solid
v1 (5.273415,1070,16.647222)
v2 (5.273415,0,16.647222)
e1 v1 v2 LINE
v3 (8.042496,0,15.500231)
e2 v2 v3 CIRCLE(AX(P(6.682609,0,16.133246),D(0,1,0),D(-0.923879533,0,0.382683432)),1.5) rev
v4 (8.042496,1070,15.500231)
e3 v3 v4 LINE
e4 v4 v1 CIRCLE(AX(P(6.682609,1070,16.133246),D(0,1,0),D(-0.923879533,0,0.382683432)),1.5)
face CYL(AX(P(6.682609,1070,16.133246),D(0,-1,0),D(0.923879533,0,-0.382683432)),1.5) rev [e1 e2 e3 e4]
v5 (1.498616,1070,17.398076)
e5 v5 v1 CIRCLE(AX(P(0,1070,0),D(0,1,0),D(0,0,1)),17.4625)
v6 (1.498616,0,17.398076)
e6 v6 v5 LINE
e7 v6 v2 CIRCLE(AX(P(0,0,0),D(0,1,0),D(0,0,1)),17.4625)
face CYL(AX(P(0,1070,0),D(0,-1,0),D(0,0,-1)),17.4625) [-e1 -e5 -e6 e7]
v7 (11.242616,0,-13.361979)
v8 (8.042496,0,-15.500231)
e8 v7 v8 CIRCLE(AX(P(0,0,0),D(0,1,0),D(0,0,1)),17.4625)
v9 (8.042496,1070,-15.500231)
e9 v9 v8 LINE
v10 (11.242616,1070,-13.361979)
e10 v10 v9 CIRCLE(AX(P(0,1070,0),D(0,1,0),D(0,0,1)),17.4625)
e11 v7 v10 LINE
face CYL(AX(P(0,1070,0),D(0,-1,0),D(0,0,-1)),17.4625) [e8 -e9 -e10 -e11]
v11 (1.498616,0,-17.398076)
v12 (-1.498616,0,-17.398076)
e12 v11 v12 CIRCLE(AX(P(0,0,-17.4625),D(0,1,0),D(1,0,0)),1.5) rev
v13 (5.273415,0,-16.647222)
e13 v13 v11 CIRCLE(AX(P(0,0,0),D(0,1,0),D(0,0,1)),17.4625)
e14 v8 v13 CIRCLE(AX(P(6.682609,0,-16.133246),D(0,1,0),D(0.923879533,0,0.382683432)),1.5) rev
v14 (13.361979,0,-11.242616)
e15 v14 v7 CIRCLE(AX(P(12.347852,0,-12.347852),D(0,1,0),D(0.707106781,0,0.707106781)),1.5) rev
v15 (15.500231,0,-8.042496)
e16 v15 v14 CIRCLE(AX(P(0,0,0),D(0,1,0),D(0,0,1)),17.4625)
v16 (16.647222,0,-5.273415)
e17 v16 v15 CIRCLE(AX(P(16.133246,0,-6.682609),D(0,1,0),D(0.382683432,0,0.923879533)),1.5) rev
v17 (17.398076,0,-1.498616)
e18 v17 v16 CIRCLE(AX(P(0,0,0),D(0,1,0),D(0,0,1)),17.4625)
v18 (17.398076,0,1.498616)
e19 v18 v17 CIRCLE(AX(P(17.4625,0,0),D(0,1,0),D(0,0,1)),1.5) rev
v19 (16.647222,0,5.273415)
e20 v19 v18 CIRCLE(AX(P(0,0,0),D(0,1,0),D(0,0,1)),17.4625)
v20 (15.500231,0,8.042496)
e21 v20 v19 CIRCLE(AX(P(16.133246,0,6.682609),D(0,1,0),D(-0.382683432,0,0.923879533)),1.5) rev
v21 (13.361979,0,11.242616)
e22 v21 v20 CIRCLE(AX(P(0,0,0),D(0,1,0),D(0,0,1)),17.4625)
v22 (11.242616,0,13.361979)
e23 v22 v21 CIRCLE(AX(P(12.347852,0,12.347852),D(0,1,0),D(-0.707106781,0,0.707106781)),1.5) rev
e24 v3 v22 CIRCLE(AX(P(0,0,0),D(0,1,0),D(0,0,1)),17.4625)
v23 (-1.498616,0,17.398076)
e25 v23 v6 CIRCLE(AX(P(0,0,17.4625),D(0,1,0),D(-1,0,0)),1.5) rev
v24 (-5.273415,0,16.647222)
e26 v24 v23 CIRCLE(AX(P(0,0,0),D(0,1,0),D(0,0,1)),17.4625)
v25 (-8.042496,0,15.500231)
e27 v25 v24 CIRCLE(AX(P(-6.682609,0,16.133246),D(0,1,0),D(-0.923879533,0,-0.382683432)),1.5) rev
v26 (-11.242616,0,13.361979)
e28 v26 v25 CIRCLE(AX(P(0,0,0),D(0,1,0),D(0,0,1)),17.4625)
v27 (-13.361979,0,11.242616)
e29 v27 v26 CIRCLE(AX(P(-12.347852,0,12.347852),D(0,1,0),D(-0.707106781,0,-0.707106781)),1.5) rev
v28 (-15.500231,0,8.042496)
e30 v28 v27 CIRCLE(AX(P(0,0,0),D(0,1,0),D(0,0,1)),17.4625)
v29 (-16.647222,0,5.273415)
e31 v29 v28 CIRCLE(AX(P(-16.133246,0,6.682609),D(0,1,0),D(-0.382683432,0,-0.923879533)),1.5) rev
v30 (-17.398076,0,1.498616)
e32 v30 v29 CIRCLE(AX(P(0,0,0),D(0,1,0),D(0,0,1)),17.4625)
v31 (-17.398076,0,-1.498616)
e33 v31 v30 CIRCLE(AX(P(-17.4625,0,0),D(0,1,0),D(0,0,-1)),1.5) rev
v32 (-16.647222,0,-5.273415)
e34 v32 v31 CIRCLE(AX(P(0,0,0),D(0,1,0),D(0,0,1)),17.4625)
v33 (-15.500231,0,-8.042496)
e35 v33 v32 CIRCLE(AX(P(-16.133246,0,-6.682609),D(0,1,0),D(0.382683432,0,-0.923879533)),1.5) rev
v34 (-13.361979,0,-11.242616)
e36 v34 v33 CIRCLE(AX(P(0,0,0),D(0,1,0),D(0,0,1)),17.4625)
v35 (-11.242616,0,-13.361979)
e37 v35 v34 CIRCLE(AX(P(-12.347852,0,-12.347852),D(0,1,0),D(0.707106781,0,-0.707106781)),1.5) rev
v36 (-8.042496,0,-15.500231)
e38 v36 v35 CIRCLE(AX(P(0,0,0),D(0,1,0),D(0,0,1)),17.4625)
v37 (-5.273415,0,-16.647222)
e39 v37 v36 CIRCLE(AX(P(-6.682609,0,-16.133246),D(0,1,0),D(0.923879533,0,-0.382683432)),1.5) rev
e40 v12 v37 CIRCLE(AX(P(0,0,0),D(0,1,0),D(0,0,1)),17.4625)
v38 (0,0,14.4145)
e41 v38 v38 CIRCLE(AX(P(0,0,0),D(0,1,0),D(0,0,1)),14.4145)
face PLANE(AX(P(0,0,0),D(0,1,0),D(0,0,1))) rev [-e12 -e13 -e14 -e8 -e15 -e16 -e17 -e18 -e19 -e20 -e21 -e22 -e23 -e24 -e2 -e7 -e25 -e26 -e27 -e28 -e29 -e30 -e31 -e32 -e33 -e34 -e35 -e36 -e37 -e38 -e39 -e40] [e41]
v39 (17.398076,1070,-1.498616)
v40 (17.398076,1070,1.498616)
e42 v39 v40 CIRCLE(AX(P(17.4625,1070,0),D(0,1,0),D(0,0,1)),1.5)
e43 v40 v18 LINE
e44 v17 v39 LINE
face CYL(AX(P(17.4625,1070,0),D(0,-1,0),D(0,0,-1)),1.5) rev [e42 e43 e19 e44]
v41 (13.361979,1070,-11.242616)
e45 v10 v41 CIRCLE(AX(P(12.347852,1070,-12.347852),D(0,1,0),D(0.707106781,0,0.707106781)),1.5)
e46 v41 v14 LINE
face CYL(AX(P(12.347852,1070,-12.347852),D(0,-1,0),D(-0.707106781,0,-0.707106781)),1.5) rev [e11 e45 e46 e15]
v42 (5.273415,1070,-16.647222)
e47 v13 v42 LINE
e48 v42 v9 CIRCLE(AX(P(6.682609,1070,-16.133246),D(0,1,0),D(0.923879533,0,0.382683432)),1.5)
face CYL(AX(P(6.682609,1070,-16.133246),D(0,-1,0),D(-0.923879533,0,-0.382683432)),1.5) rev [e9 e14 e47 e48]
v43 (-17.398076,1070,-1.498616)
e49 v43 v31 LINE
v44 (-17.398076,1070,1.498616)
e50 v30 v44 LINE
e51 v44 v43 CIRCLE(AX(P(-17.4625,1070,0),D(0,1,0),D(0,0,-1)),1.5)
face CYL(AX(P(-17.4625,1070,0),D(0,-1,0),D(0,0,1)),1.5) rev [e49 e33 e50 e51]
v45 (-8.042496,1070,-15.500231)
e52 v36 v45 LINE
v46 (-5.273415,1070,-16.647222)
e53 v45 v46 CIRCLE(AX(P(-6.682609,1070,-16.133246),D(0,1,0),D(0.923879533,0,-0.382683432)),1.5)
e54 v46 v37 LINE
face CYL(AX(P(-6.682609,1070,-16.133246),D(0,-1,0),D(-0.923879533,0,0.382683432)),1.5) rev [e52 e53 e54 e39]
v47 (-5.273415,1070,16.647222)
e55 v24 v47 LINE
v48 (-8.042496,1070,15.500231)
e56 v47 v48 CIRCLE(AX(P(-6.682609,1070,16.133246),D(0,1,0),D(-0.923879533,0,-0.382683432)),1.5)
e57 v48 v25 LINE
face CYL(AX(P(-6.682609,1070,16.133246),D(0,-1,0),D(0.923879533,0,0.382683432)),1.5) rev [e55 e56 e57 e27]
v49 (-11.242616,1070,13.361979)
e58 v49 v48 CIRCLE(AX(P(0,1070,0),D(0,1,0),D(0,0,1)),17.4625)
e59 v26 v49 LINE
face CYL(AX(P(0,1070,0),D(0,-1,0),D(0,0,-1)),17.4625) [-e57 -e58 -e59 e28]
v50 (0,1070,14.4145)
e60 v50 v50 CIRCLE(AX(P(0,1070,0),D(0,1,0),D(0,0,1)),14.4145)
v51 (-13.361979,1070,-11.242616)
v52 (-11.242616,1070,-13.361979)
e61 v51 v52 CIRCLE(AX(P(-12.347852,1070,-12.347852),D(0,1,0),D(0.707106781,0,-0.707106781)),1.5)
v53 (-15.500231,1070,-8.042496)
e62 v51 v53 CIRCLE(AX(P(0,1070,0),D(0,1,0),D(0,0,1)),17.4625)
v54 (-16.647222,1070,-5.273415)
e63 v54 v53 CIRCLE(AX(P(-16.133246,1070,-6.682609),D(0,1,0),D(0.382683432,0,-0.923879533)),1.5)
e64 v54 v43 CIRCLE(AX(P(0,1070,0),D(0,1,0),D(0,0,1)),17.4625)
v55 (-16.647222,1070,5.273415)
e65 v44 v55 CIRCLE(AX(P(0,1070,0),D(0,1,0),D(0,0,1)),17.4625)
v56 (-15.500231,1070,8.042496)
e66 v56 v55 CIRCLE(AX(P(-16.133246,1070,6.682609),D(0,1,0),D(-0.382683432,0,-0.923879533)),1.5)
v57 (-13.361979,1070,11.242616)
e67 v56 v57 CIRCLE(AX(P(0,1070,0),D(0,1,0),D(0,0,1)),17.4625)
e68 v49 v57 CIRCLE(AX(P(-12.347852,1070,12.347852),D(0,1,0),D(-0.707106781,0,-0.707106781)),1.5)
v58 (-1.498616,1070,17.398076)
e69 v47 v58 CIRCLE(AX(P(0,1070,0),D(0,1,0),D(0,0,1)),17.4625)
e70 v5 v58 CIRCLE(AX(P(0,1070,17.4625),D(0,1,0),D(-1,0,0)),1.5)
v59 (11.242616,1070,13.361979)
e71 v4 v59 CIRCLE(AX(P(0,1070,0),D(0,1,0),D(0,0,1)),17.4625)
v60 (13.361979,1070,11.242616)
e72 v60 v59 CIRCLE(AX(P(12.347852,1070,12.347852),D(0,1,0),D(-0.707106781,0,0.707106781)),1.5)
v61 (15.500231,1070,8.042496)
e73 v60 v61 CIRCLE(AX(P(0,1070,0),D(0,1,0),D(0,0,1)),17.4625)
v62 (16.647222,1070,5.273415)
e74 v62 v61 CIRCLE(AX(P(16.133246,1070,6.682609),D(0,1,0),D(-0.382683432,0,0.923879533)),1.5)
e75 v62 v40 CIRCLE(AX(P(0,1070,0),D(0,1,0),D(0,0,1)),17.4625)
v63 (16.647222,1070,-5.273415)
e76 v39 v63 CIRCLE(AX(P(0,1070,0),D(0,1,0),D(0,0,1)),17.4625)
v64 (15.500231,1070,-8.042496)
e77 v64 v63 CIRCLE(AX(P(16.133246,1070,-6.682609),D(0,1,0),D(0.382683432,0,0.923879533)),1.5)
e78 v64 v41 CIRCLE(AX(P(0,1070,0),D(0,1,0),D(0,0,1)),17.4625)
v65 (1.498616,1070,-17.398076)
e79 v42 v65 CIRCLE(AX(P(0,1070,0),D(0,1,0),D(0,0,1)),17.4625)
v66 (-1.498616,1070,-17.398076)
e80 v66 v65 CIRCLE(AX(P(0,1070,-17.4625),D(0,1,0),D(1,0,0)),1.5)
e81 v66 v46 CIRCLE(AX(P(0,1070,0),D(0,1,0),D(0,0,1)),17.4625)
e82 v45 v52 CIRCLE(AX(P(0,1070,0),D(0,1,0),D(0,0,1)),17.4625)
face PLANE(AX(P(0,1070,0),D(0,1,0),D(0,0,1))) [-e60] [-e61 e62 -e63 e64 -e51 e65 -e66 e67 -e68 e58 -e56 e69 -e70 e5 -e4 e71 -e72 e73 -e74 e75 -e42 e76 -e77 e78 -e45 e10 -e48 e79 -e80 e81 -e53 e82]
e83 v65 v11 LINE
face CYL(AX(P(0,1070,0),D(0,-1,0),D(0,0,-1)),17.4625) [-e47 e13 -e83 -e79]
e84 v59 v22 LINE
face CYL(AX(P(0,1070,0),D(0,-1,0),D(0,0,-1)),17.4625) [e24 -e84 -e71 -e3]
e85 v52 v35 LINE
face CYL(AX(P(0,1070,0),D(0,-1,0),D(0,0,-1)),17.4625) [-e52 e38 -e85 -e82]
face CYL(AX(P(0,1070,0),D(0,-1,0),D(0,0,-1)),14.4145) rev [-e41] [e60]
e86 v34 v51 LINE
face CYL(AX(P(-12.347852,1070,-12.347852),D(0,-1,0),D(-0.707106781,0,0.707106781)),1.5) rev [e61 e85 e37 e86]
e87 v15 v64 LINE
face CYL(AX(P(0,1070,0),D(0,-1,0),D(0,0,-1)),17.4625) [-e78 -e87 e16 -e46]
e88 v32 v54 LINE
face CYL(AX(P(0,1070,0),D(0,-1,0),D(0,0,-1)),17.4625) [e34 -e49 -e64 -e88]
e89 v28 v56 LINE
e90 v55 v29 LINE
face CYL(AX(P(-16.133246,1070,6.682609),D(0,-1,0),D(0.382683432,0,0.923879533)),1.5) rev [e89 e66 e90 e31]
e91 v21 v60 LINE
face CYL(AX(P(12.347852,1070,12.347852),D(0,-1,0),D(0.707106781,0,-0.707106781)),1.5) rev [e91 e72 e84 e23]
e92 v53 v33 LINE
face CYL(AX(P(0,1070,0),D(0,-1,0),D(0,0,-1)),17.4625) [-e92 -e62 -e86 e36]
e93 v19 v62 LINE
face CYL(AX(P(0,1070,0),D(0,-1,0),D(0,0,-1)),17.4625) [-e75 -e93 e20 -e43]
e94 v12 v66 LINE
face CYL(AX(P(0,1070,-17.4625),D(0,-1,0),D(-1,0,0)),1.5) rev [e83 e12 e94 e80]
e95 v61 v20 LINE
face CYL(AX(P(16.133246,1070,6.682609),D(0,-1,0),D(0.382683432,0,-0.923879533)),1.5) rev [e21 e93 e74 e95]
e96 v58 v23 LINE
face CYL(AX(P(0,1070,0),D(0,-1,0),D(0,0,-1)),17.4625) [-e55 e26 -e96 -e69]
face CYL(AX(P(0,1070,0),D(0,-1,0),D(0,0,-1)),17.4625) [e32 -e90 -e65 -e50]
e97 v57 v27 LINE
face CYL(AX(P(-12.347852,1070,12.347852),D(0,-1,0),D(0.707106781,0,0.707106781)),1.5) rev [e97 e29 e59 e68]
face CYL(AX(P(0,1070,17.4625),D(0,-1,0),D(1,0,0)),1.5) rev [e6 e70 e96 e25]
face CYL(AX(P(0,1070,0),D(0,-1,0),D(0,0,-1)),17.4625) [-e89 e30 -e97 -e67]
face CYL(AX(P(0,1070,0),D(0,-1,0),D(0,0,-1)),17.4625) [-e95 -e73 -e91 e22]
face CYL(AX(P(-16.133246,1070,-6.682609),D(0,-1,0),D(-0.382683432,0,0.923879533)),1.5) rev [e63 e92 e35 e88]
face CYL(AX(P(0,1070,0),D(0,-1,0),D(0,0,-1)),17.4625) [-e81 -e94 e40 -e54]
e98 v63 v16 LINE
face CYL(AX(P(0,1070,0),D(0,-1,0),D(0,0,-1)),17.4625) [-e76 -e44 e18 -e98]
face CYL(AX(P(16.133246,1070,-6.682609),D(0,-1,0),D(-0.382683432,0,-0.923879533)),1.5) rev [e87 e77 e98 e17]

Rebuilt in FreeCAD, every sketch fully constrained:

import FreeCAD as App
import Part
import Sketcher
from FreeCAD import Vector

doc = App.newDocument("Part")
body = doc.addObject("PartDesign::Body", "Body")

# Sketch on XZ plane
sketch1 = doc.addObject("Sketcher::SketchObject", "Sketch")
body.addObject(sketch1)
sketch1.AttachmentSupport = (doc.XZ_Plane, [""])
sketch1.MapMode = "FlatFace"
sketch1.addGeometry([
    Part.Circle(Vector(0, 0, 0), Vector(0, 0, 1), 17.4625),
    Part.Circle(Vector(0, 0, 0), Vector(0, 0, 1), 14.4145),
], False)
sketch1.addConstraint([
    Sketcher.Constraint("Coincident", 0, 3, -1, 1),
    Sketcher.Constraint("Coincident", 1, 3, -1, 1),
    Sketcher.Constraint("Diameter", 0, 34.925),
    Sketcher.Constraint("Diameter", 1, 28.829),
])
pad1 = doc.addObject("PartDesign::Pad", "Pad")
body.addObject(pad1)
pad1.Profile = sketch1
pad1.Length = 1070
pad1.Reversed = True

# Sketch on XZ plane
sketch2 = doc.addObject("Sketcher::SketchObject", "Sketch001")
body.addObject(sketch2)
sketch2.AttachmentSupport = (doc.XZ_Plane, [""])
sketch2.MapMode = "FlatFace"
sketch2.addGeometry(Part.Circle(Vector(17.4625, 0, 0), Vector(0, 0, 1), 1.5), False)
sketch2.addConstraint([
    Sketcher.Constraint("PointOnObject", 0, 3, -1),
    Sketcher.Constraint("Diameter", 0, 3.0),
    Sketcher.Constraint("DistanceX", -1, 1, 0, 3, 17.4625),
])
pocket1 = doc.addObject("PartDesign::Pocket", "Pocket")
body.addObject(pocket1)
pocket1.Profile = sketch2
pocket1.Length = 2140
pocket1.Midplane = True
doc.recompute()

polarpattern = doc.addObject("PartDesign::PolarPattern", "PolarPattern")
body.addObject(polarpattern)
polarpattern.Originals = [pocket1]
polarpattern.Axis = (doc.Y_Axis, [""])
polarpattern.Angle = 360
polarpattern.Occurrences = 16
body.Tip = polarpattern

doc.recompute()
